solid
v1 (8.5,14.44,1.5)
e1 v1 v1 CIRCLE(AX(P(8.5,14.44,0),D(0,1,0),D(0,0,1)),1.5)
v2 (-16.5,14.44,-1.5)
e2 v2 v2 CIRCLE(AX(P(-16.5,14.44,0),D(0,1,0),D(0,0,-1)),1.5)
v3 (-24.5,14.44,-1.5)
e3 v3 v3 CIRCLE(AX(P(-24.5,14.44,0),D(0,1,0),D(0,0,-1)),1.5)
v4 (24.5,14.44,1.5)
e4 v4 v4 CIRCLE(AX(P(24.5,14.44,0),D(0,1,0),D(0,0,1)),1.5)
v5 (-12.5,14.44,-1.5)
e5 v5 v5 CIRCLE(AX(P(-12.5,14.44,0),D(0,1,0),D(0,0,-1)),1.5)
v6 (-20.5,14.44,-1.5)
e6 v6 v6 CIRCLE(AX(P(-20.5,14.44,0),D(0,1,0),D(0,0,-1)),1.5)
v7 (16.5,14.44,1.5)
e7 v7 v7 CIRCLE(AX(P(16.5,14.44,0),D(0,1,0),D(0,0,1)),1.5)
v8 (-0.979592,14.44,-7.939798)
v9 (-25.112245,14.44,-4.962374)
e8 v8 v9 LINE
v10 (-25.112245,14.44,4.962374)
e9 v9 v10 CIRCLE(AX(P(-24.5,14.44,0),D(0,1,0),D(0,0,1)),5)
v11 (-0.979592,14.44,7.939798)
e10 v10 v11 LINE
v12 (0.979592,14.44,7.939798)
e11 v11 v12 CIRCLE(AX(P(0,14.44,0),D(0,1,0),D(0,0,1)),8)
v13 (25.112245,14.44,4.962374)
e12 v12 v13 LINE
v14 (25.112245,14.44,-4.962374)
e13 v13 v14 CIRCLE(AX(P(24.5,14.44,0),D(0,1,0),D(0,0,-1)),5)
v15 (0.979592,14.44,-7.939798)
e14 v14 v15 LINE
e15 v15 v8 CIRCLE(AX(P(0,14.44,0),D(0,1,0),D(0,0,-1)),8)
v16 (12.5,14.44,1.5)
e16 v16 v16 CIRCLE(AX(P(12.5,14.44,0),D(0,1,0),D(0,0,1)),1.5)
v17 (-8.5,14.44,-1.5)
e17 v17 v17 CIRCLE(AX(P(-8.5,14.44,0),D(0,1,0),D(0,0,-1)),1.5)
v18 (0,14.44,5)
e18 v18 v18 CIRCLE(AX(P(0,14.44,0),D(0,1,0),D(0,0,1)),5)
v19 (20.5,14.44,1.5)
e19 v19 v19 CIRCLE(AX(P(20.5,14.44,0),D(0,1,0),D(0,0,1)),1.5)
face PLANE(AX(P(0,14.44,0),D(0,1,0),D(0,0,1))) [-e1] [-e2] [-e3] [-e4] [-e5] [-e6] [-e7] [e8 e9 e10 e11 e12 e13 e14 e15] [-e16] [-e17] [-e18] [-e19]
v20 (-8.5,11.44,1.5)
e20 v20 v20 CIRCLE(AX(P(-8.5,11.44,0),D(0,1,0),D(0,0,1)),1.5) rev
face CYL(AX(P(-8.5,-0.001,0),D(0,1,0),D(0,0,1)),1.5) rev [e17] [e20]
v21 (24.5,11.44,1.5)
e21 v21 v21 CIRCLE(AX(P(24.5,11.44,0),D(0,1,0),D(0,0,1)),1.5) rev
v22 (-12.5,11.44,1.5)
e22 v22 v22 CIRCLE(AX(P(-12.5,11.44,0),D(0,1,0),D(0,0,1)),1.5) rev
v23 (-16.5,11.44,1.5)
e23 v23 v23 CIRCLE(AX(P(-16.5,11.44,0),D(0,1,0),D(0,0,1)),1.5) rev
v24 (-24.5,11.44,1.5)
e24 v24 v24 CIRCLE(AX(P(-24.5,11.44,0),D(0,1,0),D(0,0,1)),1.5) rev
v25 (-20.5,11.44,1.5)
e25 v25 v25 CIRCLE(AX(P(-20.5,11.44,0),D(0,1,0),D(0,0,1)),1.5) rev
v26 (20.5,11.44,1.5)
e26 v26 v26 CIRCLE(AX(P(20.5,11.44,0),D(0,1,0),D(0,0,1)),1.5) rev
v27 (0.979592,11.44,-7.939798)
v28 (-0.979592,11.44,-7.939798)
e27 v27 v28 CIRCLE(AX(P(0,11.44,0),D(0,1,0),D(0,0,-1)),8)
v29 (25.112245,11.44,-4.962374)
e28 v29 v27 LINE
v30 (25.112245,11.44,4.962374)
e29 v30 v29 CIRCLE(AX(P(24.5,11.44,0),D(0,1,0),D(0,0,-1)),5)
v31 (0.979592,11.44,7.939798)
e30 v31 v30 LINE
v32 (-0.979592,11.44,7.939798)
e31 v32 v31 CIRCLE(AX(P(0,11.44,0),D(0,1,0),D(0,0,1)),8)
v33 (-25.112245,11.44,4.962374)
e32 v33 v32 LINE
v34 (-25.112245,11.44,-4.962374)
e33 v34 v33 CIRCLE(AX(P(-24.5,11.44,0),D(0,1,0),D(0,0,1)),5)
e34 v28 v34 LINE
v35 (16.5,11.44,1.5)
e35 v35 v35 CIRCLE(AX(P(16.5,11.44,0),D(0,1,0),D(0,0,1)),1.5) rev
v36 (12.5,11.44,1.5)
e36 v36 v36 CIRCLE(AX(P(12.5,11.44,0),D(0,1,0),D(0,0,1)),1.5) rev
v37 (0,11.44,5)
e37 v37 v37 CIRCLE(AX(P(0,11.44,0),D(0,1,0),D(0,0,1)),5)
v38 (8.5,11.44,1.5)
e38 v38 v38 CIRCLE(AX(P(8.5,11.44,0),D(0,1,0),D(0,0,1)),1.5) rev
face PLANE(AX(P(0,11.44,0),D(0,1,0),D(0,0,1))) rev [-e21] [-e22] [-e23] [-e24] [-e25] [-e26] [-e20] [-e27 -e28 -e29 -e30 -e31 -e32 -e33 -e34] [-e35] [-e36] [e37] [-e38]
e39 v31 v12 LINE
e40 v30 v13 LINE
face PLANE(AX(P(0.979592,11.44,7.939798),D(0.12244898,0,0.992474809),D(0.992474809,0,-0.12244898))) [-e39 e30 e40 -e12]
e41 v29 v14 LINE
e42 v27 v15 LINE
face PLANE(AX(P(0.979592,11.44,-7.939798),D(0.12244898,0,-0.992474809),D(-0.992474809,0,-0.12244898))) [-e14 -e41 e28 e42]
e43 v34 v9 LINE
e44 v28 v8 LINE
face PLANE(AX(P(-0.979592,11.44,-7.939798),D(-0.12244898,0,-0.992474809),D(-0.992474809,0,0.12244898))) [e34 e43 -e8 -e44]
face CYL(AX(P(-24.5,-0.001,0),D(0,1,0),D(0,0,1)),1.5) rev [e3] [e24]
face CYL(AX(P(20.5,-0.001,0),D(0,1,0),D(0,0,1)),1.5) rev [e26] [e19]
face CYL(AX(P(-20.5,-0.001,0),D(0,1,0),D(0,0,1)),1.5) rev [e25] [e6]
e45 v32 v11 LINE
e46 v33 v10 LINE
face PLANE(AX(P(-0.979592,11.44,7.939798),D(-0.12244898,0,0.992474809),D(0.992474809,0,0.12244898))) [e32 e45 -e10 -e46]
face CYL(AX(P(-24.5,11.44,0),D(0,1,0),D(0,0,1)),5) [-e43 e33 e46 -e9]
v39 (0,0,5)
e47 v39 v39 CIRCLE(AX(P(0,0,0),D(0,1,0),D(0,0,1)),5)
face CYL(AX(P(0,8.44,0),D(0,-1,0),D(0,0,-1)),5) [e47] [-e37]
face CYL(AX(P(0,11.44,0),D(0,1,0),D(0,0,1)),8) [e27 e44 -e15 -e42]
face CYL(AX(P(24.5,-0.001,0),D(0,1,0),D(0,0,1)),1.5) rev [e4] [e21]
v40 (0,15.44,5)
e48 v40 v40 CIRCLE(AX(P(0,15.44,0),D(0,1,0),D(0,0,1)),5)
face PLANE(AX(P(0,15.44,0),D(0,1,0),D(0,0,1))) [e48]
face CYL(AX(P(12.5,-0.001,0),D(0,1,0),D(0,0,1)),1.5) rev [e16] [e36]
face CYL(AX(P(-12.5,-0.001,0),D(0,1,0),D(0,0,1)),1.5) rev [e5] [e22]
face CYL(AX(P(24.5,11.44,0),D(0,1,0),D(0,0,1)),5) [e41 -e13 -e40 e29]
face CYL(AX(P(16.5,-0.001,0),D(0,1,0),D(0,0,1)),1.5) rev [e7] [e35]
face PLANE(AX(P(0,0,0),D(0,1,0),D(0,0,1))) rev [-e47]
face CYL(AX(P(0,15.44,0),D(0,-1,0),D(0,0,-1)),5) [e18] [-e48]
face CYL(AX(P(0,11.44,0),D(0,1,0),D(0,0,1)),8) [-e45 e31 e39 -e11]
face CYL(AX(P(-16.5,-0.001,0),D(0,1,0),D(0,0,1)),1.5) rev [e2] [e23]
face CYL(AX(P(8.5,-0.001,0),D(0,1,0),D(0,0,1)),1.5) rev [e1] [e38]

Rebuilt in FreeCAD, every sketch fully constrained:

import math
import FreeCAD as App
import Part
import Sketcher
from FreeCAD import Vector

doc = App.newDocument("Part")
body = doc.addObject("PartDesign::Body", "Body")

# Sketch on XZ plane
sketch1 = body.newObject("Sketcher::SketchObject", "Sketch")
sketch1.AttachmentSupport = (doc.getObject("XZ_Plane"), [""])
sketch1.MapMode = "FlatFace"
sketch1.addGeometry(Part.Circle(Vector(0, 0, 0), Vector(0, 0, 1), 5), False)
sketch1.addConstraint([
    Sketcher.Constraint("Coincident", 0, 3, -1, 1),
    Sketcher.Constraint("Diameter", 0, 10.0),
])
pad1 = body.newObject("PartDesign::Pad", "Pad")
pad1.Profile = sketch1
pad1.Length = 8.44
pad1.Reversed = True

# Sketch on XZ plane
sketch2 = body.newObject("Sketcher::SketchObject", "Sketch001")
sketch2.AttachmentSupport = (doc.getObject("XZ_Plane"), [""])
sketch2.MapMode = "FlatFace"
sketch2.AttachmentOffset = App.Placement(Vector(0, 0, -8.44), App.Rotation())
sketch2.addGeometry(Part.Circle(Vector(0, 0, 0), Vector(0, 0, 1), 5), False)
sketch2.addConstraint([
    Sketcher.Constraint("Coincident", 0, 3, -1, 1),
    Sketcher.Constraint("Diameter", 0, 10.0),
])
pad2 = body.newObject("PartDesign::Pad", "Pad001")
pad2.Profile = sketch2
pad2.Length = 6
pad2.Reversed = True

# Sketch on XZ plane
sketch3 = body.newObject("Sketcher::SketchObject", "Sketch002")
sketch3.AttachmentSupport = (doc.getObject("XZ_Plane"), [""])
sketch3.MapMode = "FlatFace"
sketch3.AttachmentOffset = App.Placement(Vector(0, 0, -14.44), App.Rotation())
sketch3.addGeometry([
    Part.LineSegment(Vector(-25.112245, 4.962374, 0), Vector(-0.979592, 7.939798, 0)),  # 0
    Part.ArcOfCircle(Part.Circle(Vector(0, 0, 0), Vector(0, 0, 1), 8), math.radians(82.966539), math.radians(97.033461)),  # 1
    Part.LineSegment(Vector(0.979592, 7.939798, 0), Vector(25.112245, 4.962374, 0)),  # 2
    Part.ArcOfCircle(Part.Circle(Vector(24.5, 0, 0), Vector(0, 0, 1), 5), math.radians(-82.966539), math.radians(82.966539)),  # 3
    Part.LineSegment(Vector(25.112245, -4.962374, 0), Vector(0.979592, -7.939798, 0)),  # 4
    Part.ArcOfCircle(Part.Circle(Vector(0, 0, 0), Vector(0, 0, 1), 8), math.radians(-97.033461), math.radians(-82.966539)),  # 5
    Part.LineSegment(Vector(-0.979592, -7.939798, 0), Vector(-25.112245, -4.962374, 0)),  # 6
    Part.ArcOfCircle(Part.Circle(Vector(-24.5, 0, 0), Vector(0, 0, 1), 5), math.radians(97.033461), math.radians(262.966539)),  # 7
], False)
sketch3.addConstraint([
    Sketcher.Constraint("Tangent", 0, 2, 1, 2),
    Sketcher.Constraint("Tangent", 1, 1, 2, 1),
    Sketcher.Constraint("Tangent", 2, 2, 3, 2),
    Sketcher.Constraint("Tangent", 3, 1, 4, 1),
    Sketcher.Constraint("Tangent", 4, 2, 5, 2),
    Sketcher.Constraint("Tangent", 5, 1, 6, 1),
    Sketcher.Constraint("Tangent", 6, 2, 7, 2),
    Sketcher.Constraint("Tangent", 7, 1, 0, 1),
    Sketcher.Constraint("Coincident", 1, 3, -1, 1),
    Sketcher.Constraint("Coincident", 5, 3, -1, 1),
    Sketcher.Constraint("Equal", 1, 5),
    Sketcher.Constraint("Equal", 3, 7),
    Sketcher.Constraint("Symmetric", 3, 3, 7, 3, -1, 1),
    Sketcher.Constraint("PointOnObject", 3, 3, -1),
    Sketcher.Constraint("Radius", 1, 8.0),
    Sketcher.Constraint("Radius", 3, 5.0),
    Sketcher.Constraint("DistanceX", 7, 3, 3, 3, 49.0),
])
pad3 = body.newObject("PartDesign::Pad", "Pad002")
pad3.Profile = sketch3
pad3.Length = 3

# Sketch on XZ plane
sketch4 = body.newObject("Sketcher::SketchObject", "Sketch003")
sketch4.AttachmentSupport = (doc.getObject("XZ_Plane"), [""])
sketch4.MapMode = "FlatFace"
sketch4.AttachmentOffset = App.Placement(Vector(0, 0, -14.44), App.Rotation())
sketch4.addGeometry(Part.Circle(Vector(24.5, 0, 0), Vector(0, 0, 1), 1.5), False)
sketch4.addConstraint([
    Sketcher.Constraint("PointOnObject", 0, 3, -1),
    Sketcher.Constraint("Diameter", 0, 3.0),
    Sketcher.Constraint("DistanceX", -1, 1, 0, 3, 24.5),
])
pocket1 = body.newObject("PartDesign::Pocket", "Pocket")
pocket1.Profile = sketch4
pocket1.Type = "UpToFirst"
pocket1.Reversed = True

# Sketch on XZ plane
sketch5 = body.newObject("Sketcher::SketchObject", "Sketch004")
sketch5.AttachmentSupport = (doc.getObject("XZ_Plane"), [""])
sketch5.MapMode = "FlatFace"
sketch5.AttachmentOffset = App.Placement(Vector(0, 0, -14.44), App.Rotation())
sketch5.addGeometry(Part.Circle(Vector(20.5, 0, 0), Vector(0, 0, 1), 1.5), False)
sketch5.addConstraint([
    Sketcher.Constraint("PointOnObject", 0, 3, -1),
    Sketcher.Constraint("Diameter", 0, 3.0),
    Sketcher.Constraint("DistanceX", -1, 1, 0, 3, 20.5),
])
pocket2 = body.newObject("PartDesign::Pocket", "Pocket001")
pocket2.Profile = sketch5
pocket2.Type = "UpToFirst"
pocket2.Reversed = True

# Sketch on XZ plane
sketch6 = body.newObject("Sketcher::SketchObject", "Sketch005")
sketch6.AttachmentSupport = (doc.getObject("XZ_Plane"), [""])
sketch6.MapMode = "FlatFace"
sketch6.AttachmentOffset = App.Placement(Vector(0, 0, -14.44), App.Rotation())
sketch6.addGeometry(Part.Circle(Vector(16.5, 0, 0), Vector(0, 0, 1), 1.5), False)
sketch6.addConstraint([
    Sketcher.Constraint("PointOnObject", 0, 3, -1),
    Sketcher.Constraint("Diameter", 0, 3.0),
    Sketcher.Constraint("DistanceX", -1, 1, 0, 3, 16.5),
])
pocket3 = body.newObject("PartDesign::Pocket", "Pocket002")
pocket3.Profile = sketch6
pocket3.Type = "UpToFirst"
pocket3.Reversed = True

# Sketch on XZ plane
sketch7 = body.newObject("Sketcher::SketchObject", "Sketch006")
sketch7.AttachmentSupport = (doc.getObject("XZ_Plane"), [""])
sketch7.MapMode = "FlatFace"
sketch7.AttachmentOffset = App.Placement(Vector(0, 0, -14.44), App.Rotation())
sketch7.addGeometry(Part.Circle(Vector(12.5, 0, 0), Vector(0, 0, 1), 1.5), False)
sketch7.addConstraint([
    Sketcher.Constraint("PointOnObject", 0, 3, -1),
    Sketcher.Constraint("Diameter", 0, 3.0),
    Sketcher.Constraint("DistanceX", -1, 1, 0, 3, 12.5),
])
pocket4 = body.newObject("PartDesign::Pocket", "Pocket003")
pocket4.Profile = sketch7
pocket4.Type = "UpToFirst"
pocket4.Reversed = True

# Sketch on XZ plane
sketch8 = body.newObject("Sketcher::SketchObject", "Sketch007")
sketch8.AttachmentSupport = (doc.getObject("XZ_Plane"), [""])
sketch8.MapMode = "FlatFace"
sketch8.AttachmentOffset = App.Placement(Vector(0, 0, -14.44), App.Rotation())
sketch8.addGeometry(Part.Circle(Vector(8.5, 0, 0), Vector(0, 0, 1), 1.5), False)
sketch8.addConstraint([
    Sketcher.Constraint("PointOnObject", 0, 3, -1),
    Sketcher.Constraint("Diameter", 0, 3.0),
    Sketcher.Constraint("DistanceX", -1, 1, 0, 3, 8.5),
])
pocket5 = body.newObject("PartDesign::Pocket", "Pocket004")
pocket5.Profile = sketch8
pocket5.Type = "UpToFirst"
pocket5.Reversed = True

# Sketch on XZ plane
sketch9 = body.newObject("Sketcher::SketchObject", "Sketch008")
sketch9.AttachmentSupport = (doc.getObject("XZ_Plane"), [""])
sketch9.MapMode = "FlatFace"
sketch9.AttachmentOffset = App.Placement(Vector(0, 0, -14.44), App.Rotation())
sketch9.addGeometry(Part.Circle(Vector(-24.5, 0, 0), Vector(0, 0, 1), 1.5), False)
sketch9.addConstraint([
    Sketcher.Constraint("PointOnObject", 0, 3, -1),
    Sketcher.Constraint("Diameter", 0, 3.0),
    Sketcher.Constraint("DistanceX", 0, 3, -1, 1, 24.5),
])
pocket6 = body.newObject("PartDesign::Pocket", "Pocket005")
pocket6.Profile = sketch9
pocket6.Type = "UpToFirst"
pocket6.Reversed = True

# Sketch on XZ plane
sketch10 = body.newObject("Sketcher::SketchObject", "Sketch009")
sketch10.AttachmentSupport = (doc.getObject("XZ_Plane"), [""])
sketch10.MapMode = "FlatFace"
sketch10.AttachmentOffset = App.Placement(Vector(0, 0, -14.44), App.Rotation())
sketch10.addGeometry(Part.Circle(Vector(-8.5, 0, 0), Vector(0, 0, 1), 1.5), False)
sketch10.addConstraint([
    Sketcher.Constraint("PointOnObject", 0, 3, -1),
    Sketcher.Constraint("Diameter", 0, 3.0),
    Sketcher.Constraint("DistanceX", 0, 3, -1, 1, 8.5),
])
pocket7 = body.newObject("PartDesign::Pocket", "Pocket006")
pocket7.Profile = sketch10
pocket7.Type = "UpToFirst"
pocket7.Reversed = True

# Sketch on XZ plane
sketch11 = body.newObject("Sketcher::SketchObject", "Sketch010")
sketch11.AttachmentSupport = (doc.getObject("XZ_Plane"), [""])
sketch11.MapMode = "FlatFace"
sketch11.AttachmentOffset = App.Placement(Vector(0, 0, -14.44), App.Rotation())
sketch11.addGeometry(Part.Circle(Vector(-12.5, 0, 0), Vector(0, 0, 1), 1.5), False)
sketch11.addConstraint([
    Sketcher.Constraint("PointOnObject", 0, 3, -1),
    Sketcher.Constraint("Diameter", 0, 3.0),
    Sketcher.Constraint("DistanceX", 0, 3, -1, 1, 12.5),
])
pocket8 = body.newObject("PartDesign::Pocket", "Pocket007")
pocket8.Profile = sketch11
pocket8.Type = "UpToFirst"
pocket8.Reversed = True

# Sketch on XZ plane
sketch12 = body.newObject("Sketcher::SketchObject", "Sketch011")
sketch12.AttachmentSupport = (doc.getObject("XZ_Plane"), [""])
sketch12.MapMode = "FlatFace"
sketch12.AttachmentOffset = App.Placement(Vector(0, 0, -14.44), App.Rotation())
sketch12.addGeometry(Part.Circle(Vector(-16.5, 0, 0), Vector(0, 0, 1), 1.5), False)
sketch12.addConstraint([
    Sketcher.Constraint("PointOnObject", 0, 3, -1),
    Sketcher.Constraint("Diameter", 0, 3.0),
    Sketcher.Constraint("DistanceX", 0, 3, -1, 1, 16.5),
])
pocket9 = body.newObject("PartDesign::Pocket", "Pocket008")
pocket9.Profile = sketch12
pocket9.Type = "UpToFirst"
pocket9.Reversed = True

# Sketch on XZ plane
sketch13 = body.newObject("Sketcher::SketchObject", "Sketch012")
sketch13.AttachmentSupport = (doc.getObject("XZ_Plane"), [""])
sketch13.MapMode = "FlatFace"
sketch13.AttachmentOffset = App.Placement(Vector(0, 0, -14.44), App.Rotation())
sketch13.addGeometry(Part.Circle(Vector(-20.5, 0, 0), Vector(0, 0, 1), 1.5), False)
sketch13.addConstraint([
    Sketcher.Constraint("PointOnObject", 0, 3, -1),
    Sketcher.Constraint("Diameter", 0, 3.0),
    Sketcher.Constraint("DistanceX", 0, 3, -1, 1, 20.5),
])
pocket10 = body.newObject("PartDesign::Pocket", "Pocket009")
pocket10.Profile = sketch13
pocket10.Type = "UpToFirst"
pocket10.Reversed = True

# Sketch on XZ plane
sketch14 = body.newObject("Sketcher::SketchObject", "Sketch013")
sketch14.AttachmentSupport = (doc.getObject("XZ_Plane"), [""])
sketch14.MapMode = "FlatFace"
sketch14.AttachmentOffset = App.Placement(Vector(0, 0, -14.44), App.Rotation())
sketch14.addGeometry(Part.Circle(Vector(0, 0, 0), Vector(0, 0, 1), 5), False)
sketch14.addConstraint([
    Sketcher.Constraint("Coincident", 0, 3, -1, 1),
    Sketcher.Constraint("Diameter", 0, 10.0),
])
pad4 = body.newObject("PartDesign::Pad", "Pad003")
pad4.Profile = sketch14
pad4.Length = 1
pad4.Reversed = True

doc.recompute()
